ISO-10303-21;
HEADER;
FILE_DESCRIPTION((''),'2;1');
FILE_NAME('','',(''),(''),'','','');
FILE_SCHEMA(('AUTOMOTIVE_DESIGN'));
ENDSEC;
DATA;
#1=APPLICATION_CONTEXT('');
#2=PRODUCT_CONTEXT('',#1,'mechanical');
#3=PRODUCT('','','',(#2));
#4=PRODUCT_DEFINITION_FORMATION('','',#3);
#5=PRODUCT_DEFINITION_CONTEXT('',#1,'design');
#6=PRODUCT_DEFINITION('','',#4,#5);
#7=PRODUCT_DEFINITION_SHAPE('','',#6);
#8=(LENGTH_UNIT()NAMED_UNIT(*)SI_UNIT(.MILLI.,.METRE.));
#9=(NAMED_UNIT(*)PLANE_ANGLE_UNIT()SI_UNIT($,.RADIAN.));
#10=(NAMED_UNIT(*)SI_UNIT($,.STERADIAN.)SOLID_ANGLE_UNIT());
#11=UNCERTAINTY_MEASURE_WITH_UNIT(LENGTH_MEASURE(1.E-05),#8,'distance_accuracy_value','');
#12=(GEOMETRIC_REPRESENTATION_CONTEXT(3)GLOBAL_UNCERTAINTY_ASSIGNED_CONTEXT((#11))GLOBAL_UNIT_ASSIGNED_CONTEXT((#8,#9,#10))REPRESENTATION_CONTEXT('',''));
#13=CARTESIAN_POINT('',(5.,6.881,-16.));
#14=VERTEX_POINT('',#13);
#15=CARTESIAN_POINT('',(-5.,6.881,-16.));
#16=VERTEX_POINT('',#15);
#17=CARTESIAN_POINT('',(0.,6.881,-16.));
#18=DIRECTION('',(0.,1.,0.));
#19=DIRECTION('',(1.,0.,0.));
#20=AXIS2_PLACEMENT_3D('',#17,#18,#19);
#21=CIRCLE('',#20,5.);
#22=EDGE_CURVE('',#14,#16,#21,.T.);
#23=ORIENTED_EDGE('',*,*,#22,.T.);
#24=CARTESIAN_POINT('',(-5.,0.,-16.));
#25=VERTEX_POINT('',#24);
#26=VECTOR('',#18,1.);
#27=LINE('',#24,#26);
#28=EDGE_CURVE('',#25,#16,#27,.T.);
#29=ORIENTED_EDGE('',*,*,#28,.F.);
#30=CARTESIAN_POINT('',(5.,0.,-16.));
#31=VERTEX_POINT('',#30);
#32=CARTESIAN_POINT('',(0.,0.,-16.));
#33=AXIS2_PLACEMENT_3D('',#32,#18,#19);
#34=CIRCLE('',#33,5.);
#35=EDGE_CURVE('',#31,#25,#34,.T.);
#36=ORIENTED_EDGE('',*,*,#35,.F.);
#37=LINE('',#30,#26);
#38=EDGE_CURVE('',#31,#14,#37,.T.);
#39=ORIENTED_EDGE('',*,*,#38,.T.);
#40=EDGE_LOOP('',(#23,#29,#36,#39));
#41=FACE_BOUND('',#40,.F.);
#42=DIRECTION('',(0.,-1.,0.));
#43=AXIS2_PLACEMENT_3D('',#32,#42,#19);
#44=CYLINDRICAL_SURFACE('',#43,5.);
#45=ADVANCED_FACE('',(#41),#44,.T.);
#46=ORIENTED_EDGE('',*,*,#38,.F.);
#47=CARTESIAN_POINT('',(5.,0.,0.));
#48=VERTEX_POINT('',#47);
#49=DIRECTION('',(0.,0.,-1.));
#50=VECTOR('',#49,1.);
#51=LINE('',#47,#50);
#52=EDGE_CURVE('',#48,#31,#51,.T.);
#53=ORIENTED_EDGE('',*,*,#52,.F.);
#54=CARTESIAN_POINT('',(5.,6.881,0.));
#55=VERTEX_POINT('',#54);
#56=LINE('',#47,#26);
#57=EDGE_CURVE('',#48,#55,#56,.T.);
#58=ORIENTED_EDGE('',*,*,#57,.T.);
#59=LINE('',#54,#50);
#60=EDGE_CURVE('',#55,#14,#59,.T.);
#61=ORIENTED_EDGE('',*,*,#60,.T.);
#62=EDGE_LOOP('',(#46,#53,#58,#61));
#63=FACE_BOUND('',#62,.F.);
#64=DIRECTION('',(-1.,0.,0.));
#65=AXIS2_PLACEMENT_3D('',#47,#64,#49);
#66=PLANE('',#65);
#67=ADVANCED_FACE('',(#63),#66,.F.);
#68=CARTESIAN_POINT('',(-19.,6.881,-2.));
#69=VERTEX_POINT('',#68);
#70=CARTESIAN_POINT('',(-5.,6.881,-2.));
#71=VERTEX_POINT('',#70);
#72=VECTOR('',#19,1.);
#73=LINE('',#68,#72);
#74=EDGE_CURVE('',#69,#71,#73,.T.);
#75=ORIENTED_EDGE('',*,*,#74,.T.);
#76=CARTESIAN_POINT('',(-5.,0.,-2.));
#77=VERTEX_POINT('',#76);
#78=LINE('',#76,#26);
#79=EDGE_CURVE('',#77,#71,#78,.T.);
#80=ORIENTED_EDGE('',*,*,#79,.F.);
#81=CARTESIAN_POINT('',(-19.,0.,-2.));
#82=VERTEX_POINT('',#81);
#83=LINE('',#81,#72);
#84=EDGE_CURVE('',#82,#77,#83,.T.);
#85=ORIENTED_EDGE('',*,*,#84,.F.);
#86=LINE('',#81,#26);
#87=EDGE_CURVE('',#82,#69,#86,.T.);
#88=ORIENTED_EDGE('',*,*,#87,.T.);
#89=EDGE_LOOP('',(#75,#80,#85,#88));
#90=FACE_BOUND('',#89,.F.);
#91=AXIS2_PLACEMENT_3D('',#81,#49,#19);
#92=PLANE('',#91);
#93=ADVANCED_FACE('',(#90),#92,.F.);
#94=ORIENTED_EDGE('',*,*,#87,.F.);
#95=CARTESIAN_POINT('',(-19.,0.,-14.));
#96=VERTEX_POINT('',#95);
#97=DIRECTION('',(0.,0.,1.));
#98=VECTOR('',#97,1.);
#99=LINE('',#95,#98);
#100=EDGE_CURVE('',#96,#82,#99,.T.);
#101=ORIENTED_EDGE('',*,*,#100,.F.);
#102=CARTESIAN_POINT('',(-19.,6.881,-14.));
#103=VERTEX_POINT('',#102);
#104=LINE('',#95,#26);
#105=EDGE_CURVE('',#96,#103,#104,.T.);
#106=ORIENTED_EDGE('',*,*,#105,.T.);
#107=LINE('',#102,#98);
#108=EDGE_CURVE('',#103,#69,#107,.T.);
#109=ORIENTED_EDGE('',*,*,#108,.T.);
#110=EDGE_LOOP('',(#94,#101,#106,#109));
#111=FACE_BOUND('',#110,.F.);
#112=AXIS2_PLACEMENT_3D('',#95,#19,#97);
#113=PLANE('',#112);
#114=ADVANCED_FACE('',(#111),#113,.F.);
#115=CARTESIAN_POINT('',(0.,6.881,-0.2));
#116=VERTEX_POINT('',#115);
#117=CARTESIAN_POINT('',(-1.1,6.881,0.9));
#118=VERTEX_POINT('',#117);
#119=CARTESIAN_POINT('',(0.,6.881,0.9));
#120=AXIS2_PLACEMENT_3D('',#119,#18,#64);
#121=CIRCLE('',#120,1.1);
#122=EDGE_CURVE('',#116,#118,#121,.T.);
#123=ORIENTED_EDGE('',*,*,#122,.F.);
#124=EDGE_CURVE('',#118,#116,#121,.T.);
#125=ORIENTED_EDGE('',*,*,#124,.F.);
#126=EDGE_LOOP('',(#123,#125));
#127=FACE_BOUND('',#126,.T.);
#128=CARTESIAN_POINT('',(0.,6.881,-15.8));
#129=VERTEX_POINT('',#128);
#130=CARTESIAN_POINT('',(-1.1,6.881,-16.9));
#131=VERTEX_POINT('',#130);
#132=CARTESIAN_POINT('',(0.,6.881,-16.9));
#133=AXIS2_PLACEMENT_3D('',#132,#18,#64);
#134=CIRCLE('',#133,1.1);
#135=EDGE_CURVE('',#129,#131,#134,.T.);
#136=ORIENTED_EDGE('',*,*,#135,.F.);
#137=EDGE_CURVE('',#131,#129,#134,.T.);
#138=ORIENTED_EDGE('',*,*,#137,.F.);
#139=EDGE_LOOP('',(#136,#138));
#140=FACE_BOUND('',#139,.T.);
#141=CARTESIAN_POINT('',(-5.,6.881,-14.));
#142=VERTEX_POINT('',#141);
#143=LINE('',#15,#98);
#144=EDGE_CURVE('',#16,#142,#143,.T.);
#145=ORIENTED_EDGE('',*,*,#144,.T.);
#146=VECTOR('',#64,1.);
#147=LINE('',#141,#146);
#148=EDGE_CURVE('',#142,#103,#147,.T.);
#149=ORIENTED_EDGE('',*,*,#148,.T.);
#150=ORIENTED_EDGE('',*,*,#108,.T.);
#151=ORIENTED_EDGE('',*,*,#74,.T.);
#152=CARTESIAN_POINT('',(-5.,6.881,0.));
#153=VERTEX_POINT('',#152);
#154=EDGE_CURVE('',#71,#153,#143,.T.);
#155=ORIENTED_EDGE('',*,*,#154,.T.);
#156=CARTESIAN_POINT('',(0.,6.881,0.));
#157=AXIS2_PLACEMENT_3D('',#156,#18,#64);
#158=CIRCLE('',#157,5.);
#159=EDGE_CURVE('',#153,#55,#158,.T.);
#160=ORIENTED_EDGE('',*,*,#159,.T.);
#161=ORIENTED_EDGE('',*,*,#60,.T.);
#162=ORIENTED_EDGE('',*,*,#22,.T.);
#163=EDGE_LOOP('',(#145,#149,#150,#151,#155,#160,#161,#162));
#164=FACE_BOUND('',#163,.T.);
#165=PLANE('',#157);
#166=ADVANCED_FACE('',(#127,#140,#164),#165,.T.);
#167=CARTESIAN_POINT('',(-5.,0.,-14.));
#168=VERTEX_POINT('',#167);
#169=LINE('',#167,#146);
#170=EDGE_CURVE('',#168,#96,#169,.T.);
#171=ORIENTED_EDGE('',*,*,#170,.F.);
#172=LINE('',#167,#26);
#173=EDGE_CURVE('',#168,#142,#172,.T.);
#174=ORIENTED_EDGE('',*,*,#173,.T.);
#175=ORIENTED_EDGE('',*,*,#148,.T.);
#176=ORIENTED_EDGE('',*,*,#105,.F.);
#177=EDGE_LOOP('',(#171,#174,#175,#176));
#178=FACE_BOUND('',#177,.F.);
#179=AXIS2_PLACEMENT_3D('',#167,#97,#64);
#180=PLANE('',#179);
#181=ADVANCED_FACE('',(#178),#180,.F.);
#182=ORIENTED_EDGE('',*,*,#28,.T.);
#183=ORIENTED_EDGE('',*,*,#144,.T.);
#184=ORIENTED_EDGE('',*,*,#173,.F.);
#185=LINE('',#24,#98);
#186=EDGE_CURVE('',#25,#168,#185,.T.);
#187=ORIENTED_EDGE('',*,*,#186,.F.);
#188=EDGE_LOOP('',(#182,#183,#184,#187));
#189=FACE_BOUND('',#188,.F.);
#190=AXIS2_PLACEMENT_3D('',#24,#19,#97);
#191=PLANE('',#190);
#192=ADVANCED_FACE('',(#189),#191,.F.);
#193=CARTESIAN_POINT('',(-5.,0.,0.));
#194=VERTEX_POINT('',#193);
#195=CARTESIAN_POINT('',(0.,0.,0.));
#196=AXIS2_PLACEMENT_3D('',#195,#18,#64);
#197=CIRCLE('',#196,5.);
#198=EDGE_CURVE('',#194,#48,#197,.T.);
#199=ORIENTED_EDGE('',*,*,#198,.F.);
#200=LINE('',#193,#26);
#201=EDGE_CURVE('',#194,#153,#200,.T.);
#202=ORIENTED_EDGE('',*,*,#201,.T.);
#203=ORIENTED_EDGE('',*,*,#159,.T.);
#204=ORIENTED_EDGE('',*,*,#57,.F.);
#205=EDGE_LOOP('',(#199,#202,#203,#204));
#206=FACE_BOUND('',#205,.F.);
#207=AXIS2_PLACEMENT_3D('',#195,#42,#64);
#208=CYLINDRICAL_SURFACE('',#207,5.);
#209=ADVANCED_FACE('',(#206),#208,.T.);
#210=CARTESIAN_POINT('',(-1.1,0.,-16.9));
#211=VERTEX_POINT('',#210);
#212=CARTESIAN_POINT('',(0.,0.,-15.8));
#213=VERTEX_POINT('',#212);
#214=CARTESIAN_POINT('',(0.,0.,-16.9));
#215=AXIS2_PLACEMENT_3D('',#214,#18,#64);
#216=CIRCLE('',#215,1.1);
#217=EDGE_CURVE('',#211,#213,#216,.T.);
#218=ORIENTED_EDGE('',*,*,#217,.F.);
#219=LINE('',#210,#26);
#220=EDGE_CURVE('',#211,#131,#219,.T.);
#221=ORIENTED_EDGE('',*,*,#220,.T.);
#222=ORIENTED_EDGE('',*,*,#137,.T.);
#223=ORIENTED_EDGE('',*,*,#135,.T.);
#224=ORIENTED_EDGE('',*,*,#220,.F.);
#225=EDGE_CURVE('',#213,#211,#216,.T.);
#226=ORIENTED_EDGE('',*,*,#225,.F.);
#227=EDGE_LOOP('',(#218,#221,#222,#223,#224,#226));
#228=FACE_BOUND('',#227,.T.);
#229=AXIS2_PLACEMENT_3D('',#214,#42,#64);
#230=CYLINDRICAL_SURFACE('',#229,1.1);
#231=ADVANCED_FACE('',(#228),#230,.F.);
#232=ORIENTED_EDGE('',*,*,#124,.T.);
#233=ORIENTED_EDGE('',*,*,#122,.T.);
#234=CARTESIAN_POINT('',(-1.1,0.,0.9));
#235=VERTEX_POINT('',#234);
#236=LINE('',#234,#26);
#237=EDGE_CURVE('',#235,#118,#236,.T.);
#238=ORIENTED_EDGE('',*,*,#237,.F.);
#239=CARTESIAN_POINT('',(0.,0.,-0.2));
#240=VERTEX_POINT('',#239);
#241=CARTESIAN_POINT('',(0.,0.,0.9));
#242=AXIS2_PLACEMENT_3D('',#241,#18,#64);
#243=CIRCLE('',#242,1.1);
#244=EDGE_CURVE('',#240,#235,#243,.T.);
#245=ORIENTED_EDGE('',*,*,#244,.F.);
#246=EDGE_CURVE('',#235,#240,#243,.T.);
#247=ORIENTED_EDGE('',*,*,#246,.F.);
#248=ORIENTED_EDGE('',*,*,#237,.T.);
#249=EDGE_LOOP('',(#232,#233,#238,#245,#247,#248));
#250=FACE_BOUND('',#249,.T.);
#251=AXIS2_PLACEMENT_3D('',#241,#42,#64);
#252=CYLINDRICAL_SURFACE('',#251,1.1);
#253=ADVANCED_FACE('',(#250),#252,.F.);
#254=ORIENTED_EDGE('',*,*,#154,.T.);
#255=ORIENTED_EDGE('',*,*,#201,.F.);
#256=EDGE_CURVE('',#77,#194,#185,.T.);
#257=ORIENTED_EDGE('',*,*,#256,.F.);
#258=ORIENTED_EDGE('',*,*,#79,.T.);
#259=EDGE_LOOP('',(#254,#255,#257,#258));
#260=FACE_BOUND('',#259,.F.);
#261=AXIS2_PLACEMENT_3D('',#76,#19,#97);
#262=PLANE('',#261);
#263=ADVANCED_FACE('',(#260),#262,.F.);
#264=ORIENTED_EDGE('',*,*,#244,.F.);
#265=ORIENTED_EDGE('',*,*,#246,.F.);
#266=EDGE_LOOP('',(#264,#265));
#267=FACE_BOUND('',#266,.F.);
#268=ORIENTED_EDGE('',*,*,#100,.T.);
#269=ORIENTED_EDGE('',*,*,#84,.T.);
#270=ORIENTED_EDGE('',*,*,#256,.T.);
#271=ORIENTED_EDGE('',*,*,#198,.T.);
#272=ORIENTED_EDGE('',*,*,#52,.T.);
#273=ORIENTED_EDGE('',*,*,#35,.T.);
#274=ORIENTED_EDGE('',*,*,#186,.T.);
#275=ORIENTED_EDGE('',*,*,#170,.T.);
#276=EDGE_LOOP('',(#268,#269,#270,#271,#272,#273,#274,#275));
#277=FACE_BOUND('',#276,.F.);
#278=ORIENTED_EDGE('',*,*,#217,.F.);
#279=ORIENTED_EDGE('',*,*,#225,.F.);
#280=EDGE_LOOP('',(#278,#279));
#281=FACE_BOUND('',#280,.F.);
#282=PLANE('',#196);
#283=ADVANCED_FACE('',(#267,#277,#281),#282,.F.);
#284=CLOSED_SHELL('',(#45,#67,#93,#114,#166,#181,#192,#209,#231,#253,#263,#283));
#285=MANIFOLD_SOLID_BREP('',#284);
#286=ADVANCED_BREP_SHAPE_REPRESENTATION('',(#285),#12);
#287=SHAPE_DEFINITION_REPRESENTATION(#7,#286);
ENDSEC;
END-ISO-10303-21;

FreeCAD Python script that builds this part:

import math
import FreeCAD as App
import Part
import Sketcher

V = App.Vector
Q = App.Units.Quantity

doc = App.newDocument("Part")
body = doc.addObject("PartDesign::Body", "Body")

sketch1 = body.newObject("Sketcher::SketchObject", "Sketch")
sketch1.AttachmentSupport = (doc.getObject("XZ_Plane"), [""])
sketch1.MapMode = "FlatFace"
sketch1.addGeometry([
    Part.ArcOfCircle(Part.Circle(V(0, 0, 0), V(0, 0, 1), 5), math.radians(0), math.radians(180)),
    Part.LineSegment(V(5, 0, 0), V(5, -16, 0)),
    Part.ArcOfCircle(Part.Circle(V(0, -16, 0), V(0, 0, 1), 5), math.radians(180), math.radians(360)),
    Part.LineSegment(V(-5, -16, 0), V(-5, -14, 0)),
    Part.LineSegment(V(-5, -14, 0), V(-19, -14, 0)),
    Part.LineSegment(V(-19, -14, 0), V(-19, -2, 0)),
    Part.LineSegment(V(-19, -2, 0), V(-5, -2, 0)),
    Part.LineSegment(V(-5, -2, 0), V(-5, 0, 0)),
    Part.Circle(V(0, -16.9, 0), V(0, 0, 1), 1.1),
    Part.Circle(V(0, 0.9, 0), V(0, 0, 1), 1.1),
], False)
sketch1.addConstraint([
    Sketcher.Constraint("Tangent", 0, 1, 1, 1),
    Sketcher.Constraint("Tangent", 1, 2, 2, 2),
    Sketcher.Constraint("Tangent", 2, 1, 3, 1),
    Sketcher.Constraint("Coincident", 3, 2, 4, 1),
    Sketcher.Constraint("Coincident", 4, 2, 5, 1),
    Sketcher.Constraint("Coincident", 5, 2, 6, 1),
    Sketcher.Constraint("Coincident", 6, 2, 7, 1),
    Sketcher.Constraint("Tangent", 7, 2, 0, 2),
    Sketcher.Constraint("Vertical", 1),
    Sketcher.Constraint("Vertical", 3),
    Sketcher.Constraint("Horizontal", 4),
    Sketcher.Constraint("Vertical", 5),
    Sketcher.Constraint("Horizontal", 6),
    Sketcher.Constraint("Vertical", 7),
    Sketcher.Constraint("Coincident", 0, 3, -1, 1),
    Sketcher.Constraint("Equal", 0, 2),
    Sketcher.Constraint("Equal", 8, 9),
    Sketcher.Constraint("PointOnObject", 8, 3, -2),
    Sketcher.Constraint("PointOnObject", 9, 3, -2),
    Sketcher.Constraint("Equal", 3, 7),
    Sketcher.Constraint("Radius", 0, Q("5 mm")),
    Sketcher.Constraint("Diameter", 8, Q("2.2 mm")),
    Sketcher.Constraint("DistanceY", 1, 2, 1, 1, Q("16 mm")),
    Sketcher.Constraint("DistanceY", 5, 1, 5, 2, Q("12 mm")),
    Sketcher.Constraint("DistanceY", 8, 3, 9, 3, Q("17.8 mm")),
    Sketcher.Constraint("DistanceX", 4, 2, 4, 1, Q("14 mm")),
    Sketcher.Constraint("DistanceY", 8, 3, -1, 1, Q("16.9 mm")),
])
pad1 = body.newObject("PartDesign::Pad", "Pad")
pad1.Profile = sketch1
pad1.Length = 6.881
pad1.Reversed = True

doc.recompute()
